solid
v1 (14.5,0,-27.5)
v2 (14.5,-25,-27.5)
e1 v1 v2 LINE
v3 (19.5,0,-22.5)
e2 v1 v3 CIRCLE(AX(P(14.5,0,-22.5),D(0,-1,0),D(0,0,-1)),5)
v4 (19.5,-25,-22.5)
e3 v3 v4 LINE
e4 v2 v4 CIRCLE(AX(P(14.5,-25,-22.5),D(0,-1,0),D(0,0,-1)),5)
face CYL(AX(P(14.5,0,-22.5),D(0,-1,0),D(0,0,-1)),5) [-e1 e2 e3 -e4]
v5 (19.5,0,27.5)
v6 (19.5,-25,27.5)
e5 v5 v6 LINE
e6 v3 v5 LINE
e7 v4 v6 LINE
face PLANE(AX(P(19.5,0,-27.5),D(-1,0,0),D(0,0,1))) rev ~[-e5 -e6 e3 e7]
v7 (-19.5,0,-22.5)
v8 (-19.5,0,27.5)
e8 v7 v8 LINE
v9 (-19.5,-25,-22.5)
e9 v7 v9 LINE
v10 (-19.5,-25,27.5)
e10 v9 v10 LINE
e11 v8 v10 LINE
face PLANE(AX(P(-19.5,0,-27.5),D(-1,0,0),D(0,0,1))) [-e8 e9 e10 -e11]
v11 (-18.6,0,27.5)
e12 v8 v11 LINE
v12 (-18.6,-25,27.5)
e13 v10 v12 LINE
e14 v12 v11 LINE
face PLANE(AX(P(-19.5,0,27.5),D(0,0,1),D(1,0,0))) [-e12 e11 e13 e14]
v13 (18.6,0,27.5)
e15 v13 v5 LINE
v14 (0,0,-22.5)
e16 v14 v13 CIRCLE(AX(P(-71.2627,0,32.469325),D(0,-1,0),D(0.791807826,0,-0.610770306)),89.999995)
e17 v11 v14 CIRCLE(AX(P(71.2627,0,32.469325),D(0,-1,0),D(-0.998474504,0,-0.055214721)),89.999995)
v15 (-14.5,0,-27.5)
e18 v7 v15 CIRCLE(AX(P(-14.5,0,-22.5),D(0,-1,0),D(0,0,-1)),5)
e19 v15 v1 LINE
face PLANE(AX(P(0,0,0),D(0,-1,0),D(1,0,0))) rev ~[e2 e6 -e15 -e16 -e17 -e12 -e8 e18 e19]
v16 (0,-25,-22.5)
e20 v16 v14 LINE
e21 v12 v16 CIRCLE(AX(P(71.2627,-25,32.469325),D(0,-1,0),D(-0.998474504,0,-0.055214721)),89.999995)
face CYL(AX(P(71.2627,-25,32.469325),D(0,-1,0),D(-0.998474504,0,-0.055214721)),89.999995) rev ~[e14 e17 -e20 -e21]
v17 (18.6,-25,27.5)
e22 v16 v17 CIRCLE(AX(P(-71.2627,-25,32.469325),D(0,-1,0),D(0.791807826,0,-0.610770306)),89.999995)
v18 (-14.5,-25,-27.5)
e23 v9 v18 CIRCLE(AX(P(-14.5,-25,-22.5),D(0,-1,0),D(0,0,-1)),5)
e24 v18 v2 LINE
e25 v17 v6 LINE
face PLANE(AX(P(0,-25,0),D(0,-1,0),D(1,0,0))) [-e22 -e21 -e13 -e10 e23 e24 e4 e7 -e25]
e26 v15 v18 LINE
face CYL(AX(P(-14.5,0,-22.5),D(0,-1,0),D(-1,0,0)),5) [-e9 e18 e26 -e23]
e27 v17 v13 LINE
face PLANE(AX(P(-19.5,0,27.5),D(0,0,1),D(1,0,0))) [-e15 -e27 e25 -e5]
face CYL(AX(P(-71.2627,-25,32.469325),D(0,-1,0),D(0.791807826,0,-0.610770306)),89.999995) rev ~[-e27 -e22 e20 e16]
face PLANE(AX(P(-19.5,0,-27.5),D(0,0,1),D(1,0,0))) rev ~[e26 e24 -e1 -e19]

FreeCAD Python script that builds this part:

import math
import FreeCAD as App
import Part
import Sketcher

V = App.Vector


def edges_at(feature, points):
    """Names of the edges that pass closest to the given points."""
    edges = feature.Shape.Edges
    near = lambda p: min(range(len(edges)), key=lambda i: edges[i].distToShape(Part.Vertex(*p))[0])
    return sorted({f"Edge{near(p) + 1}" for p in points})


def add_polygon(sketch, points):
    """Adds a closed chain of lines whose ends are joined by coincident constraints."""
    first, n = sketch.GeometryCount, len(points)
    for a, b in zip(points, points[1:] + points[:1]):
        sketch.addGeometry(Part.LineSegment(App.Vector(*a, 0), App.Vector(*b, 0)), False)
    for i in range(n):
        sketch.addConstraint(Sketcher.Constraint("Coincident", first + i, 2, first + (i + 1) % n, 1))

doc = App.newDocument("Part")
body = doc.addObject("PartDesign::Body", "Body")

# Sketch on XZ plane
sketch1 = body.newObject("Sketcher::SketchObject", "Sketch")
sketch1.AttachmentSupport = (doc.getObject("XZ_Plane"), [""])
sketch1.MapMode = "FlatFace"
add_polygon(sketch1, [(-19.5, 27.5), (-19.5, -27.5), (19.5, -27.5), (19.5, 27.5)])  # lines 0-3
sketch1.addConstraint(Sketcher.Constraint("Vertical", 0))
sketch1.addConstraint(Sketcher.Constraint("Horizontal", 1))
sketch1.addConstraint(Sketcher.Constraint("Vertical", 2))
sketch1.addConstraint(Sketcher.Constraint("Horizontal", 3))
sketch1.addConstraint(Sketcher.Constraint("Symmetric", 0, 2, 2, 2, -1, 1))
sketch1.addConstraint(Sketcher.Constraint("DistanceX", 1, 1, 1, 2, 39.0))
sketch1.addConstraint(Sketcher.Constraint("DistanceY", 0, 2, 0, 1, 55.0))
pad1 = body.newObject("PartDesign::Pad", "Pad")
pad1.Profile = sketch1
pad1.Length = 25

# Sketch on XZ plane
sketch2 = body.newObject("Sketcher::SketchObject", "Sketch001")
sketch2.AttachmentSupport = (doc.getObject("XZ_Plane"), [""])
sketch2.MapMode = "FlatFace"
sketch2.AttachmentOffset = App.Placement(V(0, 0, 25), App.Rotation())
sketch2.addGeometry(Part.LineSegment(V(18.6, 27.5, 0), V(-18.6, 27.5, 0)), False)
sketch2.addGeometry(Part.ArcOfCircle(Part.Circle(V(71.2627, 32.469325, 0), V(0, 0, 1), 89.999995), math.radians(-176.83482), math.radians(-142.354778)), False)
sketch2.addGeometry(Part.ArcOfCircle(Part.Circle(V(-71.2627, 32.469325, 0), V(0, 0, 1), 89.999995), math.radians(-37.645222), math.radians(-3.16518)), False)
sketch2.addConstraint(Sketcher.Constraint("Coincident", 0, 2, 1, 1))
sketch2.addConstraint(Sketcher.Constraint("Coincident", 1, 2, 2, 1))
sketch2.addConstraint(Sketcher.Constraint("Coincident", 2, 2, 0, 1))
sketch2.addConstraint(Sketcher.Constraint("Horizontal", 0))
sketch2.addConstraint(Sketcher.Constraint("Equal", 1, 2))
sketch2.addConstraint(Sketcher.Constraint("Symmetric", 1, 3, 2, 3, -2))
sketch2.addConstraint(Sketcher.Constraint("DistanceX", 0, 2, 0, 1, 37.2))
sketch2.addConstraint(Sketcher.Constraint("DistanceY", 1, 2, 0, 2, 50.0))
sketch2.addConstraint(Sketcher.Constraint("DistanceY", -1, 1, 0, 2, 27.5))
sketch2.addConstraint(Sketcher.Constraint("Radius", 1, 89.999995))
pocket1 = body.newObject("PartDesign::Pocket", "Pocket")
pocket1.Profile = sketch2
pocket1.Length = 25
doc.recompute()

fillet = body.newObject("PartDesign::Fillet", "Fillet")
fillet.Base = (pocket1, edges_at(pocket1, [(-19.5, -12.5, -27.5), (19.5, -12.5, -27.5)]))
fillet.Radius = 5

doc.recompute()
